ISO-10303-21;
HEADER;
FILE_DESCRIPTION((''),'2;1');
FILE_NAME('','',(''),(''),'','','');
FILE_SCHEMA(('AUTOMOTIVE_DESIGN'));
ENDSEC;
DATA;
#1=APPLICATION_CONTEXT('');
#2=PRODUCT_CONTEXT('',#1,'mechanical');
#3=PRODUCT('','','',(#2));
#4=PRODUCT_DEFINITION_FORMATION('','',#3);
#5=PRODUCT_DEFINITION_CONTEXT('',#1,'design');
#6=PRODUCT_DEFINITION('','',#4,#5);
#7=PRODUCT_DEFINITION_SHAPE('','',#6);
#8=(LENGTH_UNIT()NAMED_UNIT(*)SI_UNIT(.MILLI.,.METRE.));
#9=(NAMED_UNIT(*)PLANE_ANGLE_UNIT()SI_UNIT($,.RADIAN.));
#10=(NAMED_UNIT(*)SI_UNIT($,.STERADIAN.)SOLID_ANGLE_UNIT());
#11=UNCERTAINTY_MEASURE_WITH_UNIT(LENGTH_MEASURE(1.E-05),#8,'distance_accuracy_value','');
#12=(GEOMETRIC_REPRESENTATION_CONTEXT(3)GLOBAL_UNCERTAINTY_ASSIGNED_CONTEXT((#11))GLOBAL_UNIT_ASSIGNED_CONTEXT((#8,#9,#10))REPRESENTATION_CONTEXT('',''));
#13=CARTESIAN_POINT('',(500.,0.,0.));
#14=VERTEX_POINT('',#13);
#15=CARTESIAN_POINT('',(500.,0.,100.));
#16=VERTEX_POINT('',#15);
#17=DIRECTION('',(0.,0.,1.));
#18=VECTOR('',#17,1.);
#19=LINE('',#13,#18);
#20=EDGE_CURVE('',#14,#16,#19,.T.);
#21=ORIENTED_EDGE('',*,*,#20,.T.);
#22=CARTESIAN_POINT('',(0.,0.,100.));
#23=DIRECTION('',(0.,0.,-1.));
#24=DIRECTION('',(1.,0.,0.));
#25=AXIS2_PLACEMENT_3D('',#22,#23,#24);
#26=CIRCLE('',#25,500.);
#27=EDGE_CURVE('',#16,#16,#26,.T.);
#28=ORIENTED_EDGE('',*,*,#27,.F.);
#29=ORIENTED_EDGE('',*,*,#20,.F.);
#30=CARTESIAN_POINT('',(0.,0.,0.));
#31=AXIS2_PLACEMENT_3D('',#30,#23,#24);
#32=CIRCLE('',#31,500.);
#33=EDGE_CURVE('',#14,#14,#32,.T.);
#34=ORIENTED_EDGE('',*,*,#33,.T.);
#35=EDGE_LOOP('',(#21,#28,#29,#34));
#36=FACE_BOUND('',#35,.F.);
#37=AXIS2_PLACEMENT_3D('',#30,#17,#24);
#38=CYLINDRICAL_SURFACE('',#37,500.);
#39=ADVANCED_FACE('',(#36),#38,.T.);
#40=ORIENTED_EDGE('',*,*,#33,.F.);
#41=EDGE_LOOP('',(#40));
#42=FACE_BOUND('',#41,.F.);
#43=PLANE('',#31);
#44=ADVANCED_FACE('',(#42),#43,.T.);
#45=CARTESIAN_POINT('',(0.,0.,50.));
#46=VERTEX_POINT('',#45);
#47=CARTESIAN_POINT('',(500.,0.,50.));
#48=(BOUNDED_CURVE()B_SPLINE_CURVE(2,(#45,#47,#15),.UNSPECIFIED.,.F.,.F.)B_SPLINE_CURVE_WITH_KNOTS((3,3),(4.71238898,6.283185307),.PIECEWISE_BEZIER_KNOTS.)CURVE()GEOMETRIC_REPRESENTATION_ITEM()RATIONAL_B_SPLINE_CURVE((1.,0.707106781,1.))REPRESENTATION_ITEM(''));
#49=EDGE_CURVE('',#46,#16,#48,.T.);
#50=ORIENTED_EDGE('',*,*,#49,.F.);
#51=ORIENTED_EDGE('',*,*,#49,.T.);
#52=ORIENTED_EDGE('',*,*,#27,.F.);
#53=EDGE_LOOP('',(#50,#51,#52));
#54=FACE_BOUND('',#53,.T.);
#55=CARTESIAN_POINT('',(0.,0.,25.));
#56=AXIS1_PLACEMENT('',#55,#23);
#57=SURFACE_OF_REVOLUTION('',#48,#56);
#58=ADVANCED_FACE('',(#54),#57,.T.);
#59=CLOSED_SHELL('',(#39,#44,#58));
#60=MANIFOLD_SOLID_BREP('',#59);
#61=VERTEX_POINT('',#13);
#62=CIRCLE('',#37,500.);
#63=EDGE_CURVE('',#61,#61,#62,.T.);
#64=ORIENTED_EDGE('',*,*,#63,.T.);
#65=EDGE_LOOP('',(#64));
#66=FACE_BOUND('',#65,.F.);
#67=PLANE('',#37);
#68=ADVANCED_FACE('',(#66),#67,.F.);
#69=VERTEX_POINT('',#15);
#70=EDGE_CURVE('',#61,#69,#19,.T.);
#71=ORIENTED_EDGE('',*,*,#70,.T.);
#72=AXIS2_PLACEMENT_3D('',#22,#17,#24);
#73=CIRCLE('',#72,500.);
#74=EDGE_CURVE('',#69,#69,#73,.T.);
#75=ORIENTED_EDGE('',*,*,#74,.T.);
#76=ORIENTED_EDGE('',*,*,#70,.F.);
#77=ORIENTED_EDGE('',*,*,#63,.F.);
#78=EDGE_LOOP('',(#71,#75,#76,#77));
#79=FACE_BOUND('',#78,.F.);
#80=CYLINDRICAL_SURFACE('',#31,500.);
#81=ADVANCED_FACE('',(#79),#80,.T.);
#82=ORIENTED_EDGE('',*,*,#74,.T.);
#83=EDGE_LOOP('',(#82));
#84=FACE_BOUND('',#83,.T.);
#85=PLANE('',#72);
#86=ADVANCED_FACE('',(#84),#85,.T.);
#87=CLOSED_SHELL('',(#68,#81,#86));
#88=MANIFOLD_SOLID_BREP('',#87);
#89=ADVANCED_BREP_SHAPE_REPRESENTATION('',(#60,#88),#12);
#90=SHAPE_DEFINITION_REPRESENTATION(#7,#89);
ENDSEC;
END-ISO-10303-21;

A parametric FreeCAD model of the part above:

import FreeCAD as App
import Part
import Sketcher
from FreeCAD import Vector
Q = App.Units.Quantity

doc = App.newDocument("Part")
body = doc.addObject("PartDesign::Body", "Body")

# Sketch on XY plane
sketch1 = body.newObject("Sketcher::SketchObject", "Sketch")
sketch1.AttachmentSupport = (doc.getObject("XY_Plane"), [""])
sketch1.MapMode = "FlatFace"
sketch1.addGeometry(Part.Circle(Vector(0, 0, 0), Vector(0, 0, 1), 500), False)
sketch1.addConstraint([
    Sketcher.Constraint("Coincident", 0, 3, -1, 1),
    Sketcher.Constraint("Diameter", 0, Q("1000 mm")),
])
pad1 = body.newObject("PartDesign::Pad", "Pad")
pad1.Profile = sketch1
pad1.Length = 100
body2 = doc.addObject("PartDesign::Body", "Body001")

# Sketch on XZ plane
sketch2 = body2.newObject("Sketcher::SketchObject", "Sketch001")
sketch2.AttachmentSupport = (doc.getObject("XZ_Plane001"), [""])
sketch2.MapMode = "FlatFace"
sketch2.addGeometry([
    Part.BSplineCurve([Vector(0, 50, 0), Vector(500, 50, 0), Vector(500, 100, 0)], [3, 3], [4.71238898, 6.283185307], False, 2, [1, 0.707106781, 1], False),
    Part.LineSegment(Vector(0, 50, 0), Vector(0, 0, 0)),
    Part.LineSegment(Vector(0, 0, 0), Vector(500, 0, 0)),
    Part.LineSegment(Vector(500, 0, 0), Vector(500, 100, 0)),
], False)
sketch2.addConstraint([
    Sketcher.Constraint("Block", 0),
    Sketcher.Constraint("Coincident", 0, 1, 1, 1),
    Sketcher.Constraint("Coincident", 1, 2, 2, 1),
    Sketcher.Constraint("Coincident", 2, 2, 3, 1),
    Sketcher.Constraint("Coincident", 3, 2, 0, 2),
    Sketcher.Constraint("Vertical", 1),
    Sketcher.Constraint("Horizontal", 2),
    Sketcher.Constraint("Vertical", 3),
    Sketcher.Constraint("PointOnObject", 2, 2, -1),
])
revolution = body2.newObject("PartDesign::Revolution", "Revolution")
revolution.Profile = sketch2
revolution.ReferenceAxis = (sketch2, ["V_Axis"])
revolution.Angle = 360

doc.recompute()
